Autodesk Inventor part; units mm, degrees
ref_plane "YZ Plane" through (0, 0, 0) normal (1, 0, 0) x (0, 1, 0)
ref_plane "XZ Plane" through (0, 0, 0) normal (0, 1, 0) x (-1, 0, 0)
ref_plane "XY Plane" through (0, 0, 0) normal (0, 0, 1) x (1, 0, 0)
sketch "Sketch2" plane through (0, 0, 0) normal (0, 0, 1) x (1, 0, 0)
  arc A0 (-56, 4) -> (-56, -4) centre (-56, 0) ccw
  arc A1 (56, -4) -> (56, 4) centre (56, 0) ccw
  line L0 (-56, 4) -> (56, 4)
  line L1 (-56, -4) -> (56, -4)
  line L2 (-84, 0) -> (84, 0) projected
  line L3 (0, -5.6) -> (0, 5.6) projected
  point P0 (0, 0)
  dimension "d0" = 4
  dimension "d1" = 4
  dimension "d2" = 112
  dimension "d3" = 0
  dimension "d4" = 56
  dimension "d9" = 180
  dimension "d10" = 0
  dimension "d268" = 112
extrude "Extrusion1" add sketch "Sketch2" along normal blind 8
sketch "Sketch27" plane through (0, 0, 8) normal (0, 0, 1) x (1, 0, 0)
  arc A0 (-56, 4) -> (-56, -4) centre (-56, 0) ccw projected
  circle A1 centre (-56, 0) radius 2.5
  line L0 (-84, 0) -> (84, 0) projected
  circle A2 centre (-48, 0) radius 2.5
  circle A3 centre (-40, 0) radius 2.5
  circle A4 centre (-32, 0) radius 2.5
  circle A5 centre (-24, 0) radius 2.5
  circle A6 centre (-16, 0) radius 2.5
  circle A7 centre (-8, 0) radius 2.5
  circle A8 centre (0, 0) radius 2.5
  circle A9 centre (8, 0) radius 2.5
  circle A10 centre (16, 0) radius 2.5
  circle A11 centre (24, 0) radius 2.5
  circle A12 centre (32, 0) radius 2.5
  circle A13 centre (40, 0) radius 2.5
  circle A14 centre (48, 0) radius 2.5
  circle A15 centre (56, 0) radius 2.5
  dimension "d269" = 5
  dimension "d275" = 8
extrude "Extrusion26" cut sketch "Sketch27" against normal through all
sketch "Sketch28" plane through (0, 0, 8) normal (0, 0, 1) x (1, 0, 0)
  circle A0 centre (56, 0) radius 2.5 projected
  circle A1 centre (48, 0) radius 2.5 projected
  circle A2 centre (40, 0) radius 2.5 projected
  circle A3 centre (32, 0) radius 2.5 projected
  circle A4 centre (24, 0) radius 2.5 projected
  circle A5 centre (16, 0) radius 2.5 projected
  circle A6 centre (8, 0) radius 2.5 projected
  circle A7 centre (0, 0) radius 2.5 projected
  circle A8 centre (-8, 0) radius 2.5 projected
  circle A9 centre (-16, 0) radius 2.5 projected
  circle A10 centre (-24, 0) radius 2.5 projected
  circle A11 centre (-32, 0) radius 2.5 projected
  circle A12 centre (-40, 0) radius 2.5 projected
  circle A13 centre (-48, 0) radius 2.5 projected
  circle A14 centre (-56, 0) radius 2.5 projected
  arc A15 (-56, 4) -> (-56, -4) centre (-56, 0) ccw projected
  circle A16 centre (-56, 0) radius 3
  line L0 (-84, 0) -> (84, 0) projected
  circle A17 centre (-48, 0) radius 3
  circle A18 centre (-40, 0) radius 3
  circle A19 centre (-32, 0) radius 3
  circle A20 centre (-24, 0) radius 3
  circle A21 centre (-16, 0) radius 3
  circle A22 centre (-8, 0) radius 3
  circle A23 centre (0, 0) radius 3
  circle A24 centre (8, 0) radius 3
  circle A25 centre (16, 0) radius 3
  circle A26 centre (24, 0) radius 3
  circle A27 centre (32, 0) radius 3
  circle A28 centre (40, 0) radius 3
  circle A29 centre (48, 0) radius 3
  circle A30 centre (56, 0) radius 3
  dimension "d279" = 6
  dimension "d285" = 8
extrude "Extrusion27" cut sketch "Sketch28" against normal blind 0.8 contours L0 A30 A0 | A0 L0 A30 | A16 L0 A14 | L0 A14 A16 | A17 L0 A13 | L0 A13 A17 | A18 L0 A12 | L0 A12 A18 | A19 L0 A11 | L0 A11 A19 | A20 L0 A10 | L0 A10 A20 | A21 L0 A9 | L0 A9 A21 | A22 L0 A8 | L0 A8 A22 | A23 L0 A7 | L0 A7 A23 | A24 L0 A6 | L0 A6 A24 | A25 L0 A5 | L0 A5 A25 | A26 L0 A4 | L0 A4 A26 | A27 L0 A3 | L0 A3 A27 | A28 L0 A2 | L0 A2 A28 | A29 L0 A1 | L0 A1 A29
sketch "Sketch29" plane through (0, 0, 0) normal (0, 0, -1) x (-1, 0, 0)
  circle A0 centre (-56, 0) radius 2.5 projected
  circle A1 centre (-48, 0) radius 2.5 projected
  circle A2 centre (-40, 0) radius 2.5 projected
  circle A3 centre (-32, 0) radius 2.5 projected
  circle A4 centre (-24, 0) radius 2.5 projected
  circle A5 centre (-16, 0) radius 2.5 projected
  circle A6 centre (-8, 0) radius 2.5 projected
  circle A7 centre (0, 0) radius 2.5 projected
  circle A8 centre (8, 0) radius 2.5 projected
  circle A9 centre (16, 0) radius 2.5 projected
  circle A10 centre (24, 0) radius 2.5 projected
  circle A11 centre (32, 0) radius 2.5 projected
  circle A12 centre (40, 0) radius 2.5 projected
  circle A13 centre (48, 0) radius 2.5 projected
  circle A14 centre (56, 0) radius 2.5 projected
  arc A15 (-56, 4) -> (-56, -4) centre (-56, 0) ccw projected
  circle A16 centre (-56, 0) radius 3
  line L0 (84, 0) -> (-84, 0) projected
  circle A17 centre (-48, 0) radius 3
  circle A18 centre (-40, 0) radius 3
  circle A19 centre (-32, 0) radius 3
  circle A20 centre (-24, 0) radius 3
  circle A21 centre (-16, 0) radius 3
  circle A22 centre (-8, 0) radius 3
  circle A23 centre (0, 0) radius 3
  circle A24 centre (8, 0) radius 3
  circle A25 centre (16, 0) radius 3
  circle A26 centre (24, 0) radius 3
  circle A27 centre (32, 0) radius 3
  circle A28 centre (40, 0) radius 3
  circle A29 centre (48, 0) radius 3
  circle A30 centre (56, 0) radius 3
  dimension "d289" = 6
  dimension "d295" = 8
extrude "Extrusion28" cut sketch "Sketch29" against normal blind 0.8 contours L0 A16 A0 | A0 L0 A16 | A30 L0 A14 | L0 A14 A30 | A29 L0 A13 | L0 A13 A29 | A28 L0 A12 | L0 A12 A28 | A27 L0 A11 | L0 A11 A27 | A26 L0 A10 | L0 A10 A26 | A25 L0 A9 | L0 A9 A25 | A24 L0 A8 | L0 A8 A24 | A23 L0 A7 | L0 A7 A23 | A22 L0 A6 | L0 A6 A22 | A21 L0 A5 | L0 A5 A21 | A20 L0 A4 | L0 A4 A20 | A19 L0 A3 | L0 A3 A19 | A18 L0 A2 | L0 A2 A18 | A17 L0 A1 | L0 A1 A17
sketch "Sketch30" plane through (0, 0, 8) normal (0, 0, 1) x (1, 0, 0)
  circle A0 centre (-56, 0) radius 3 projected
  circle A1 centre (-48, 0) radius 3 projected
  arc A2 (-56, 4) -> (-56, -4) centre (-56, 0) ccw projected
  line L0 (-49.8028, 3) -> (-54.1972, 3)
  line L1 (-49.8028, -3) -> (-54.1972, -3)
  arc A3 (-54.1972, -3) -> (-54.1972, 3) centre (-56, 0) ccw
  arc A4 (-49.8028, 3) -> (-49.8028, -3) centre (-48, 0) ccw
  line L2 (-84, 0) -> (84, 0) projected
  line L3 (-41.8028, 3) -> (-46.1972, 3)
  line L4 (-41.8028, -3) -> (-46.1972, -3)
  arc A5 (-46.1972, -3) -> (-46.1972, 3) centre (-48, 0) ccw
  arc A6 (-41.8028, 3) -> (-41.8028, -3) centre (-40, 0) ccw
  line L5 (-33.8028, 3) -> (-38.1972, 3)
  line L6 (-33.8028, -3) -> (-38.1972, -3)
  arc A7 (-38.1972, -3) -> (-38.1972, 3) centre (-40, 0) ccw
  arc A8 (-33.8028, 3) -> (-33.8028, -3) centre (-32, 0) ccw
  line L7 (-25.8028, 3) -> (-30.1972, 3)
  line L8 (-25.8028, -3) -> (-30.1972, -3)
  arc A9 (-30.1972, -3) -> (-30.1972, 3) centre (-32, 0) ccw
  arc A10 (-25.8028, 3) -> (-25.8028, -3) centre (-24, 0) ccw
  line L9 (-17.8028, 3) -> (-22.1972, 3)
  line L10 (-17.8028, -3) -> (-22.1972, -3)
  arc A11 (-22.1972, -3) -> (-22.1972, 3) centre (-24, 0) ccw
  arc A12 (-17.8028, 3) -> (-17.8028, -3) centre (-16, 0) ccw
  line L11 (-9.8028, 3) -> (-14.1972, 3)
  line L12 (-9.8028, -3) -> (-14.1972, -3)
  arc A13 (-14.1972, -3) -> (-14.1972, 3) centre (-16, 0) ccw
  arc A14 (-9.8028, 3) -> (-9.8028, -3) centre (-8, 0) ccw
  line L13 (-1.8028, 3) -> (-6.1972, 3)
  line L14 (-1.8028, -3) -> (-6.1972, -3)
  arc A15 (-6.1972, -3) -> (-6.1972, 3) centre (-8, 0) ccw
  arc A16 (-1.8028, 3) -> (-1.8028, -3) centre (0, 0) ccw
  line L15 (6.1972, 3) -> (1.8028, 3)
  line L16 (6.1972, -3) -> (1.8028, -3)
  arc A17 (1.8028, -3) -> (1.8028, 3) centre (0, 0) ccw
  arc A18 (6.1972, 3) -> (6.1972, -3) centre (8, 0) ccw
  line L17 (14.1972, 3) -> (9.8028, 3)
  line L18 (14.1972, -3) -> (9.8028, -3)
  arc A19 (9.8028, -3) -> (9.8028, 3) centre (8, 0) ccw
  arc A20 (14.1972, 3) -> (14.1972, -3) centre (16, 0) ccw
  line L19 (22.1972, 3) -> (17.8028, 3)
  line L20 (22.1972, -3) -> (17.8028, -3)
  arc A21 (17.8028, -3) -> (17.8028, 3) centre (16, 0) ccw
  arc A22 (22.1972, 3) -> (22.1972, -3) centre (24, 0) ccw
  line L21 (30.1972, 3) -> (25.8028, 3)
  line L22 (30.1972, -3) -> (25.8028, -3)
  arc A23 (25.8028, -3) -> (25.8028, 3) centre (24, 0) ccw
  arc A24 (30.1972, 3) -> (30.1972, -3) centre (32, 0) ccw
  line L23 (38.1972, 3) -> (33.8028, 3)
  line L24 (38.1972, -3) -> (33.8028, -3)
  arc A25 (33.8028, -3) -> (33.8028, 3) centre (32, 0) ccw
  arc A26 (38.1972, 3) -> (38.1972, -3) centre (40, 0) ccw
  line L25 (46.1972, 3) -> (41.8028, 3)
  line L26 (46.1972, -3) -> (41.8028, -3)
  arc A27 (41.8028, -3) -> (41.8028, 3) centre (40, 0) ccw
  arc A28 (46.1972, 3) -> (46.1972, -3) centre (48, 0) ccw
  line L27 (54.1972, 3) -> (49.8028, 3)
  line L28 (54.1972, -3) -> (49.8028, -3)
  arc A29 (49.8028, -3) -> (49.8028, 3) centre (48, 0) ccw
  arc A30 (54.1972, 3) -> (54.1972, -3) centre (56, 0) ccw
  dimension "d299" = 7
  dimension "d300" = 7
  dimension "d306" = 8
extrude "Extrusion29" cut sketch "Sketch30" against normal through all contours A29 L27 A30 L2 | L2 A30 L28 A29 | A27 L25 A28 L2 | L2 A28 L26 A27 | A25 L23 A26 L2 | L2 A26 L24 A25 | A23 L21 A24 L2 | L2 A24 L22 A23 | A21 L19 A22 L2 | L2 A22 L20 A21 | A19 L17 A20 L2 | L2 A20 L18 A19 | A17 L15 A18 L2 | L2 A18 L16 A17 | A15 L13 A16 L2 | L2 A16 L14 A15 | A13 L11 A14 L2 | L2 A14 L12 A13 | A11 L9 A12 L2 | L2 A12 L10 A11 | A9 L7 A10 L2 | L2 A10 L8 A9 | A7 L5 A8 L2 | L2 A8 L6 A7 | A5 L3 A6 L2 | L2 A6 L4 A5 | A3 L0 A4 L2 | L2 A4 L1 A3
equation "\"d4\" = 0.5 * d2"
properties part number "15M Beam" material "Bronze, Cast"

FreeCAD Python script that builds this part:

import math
import FreeCAD as App
import Part
import Sketcher

V = App.Vector
Q = App.Units.Quantity

doc = App.newDocument("Part")
body = doc.addObject("PartDesign::Body", "Body")

sketch1 = body.newObject("Sketcher::SketchObject", "Sketch")
sketch1.AttachmentSupport = (doc.getObject("XY_Plane"), [""])
sketch1.MapMode = "FlatFace"
sketch1.addGeometry(Part.ArcOfCircle(Part.Circle(V(-56, 0, 0), V(0, 0, 1), 4), math.radians(90), math.radians(270)), False)
sketch1.addGeometry(Part.LineSegment(V(-56, -4, 0), V(56, -4, 0)), False)
sketch1.addGeometry(Part.ArcOfCircle(Part.Circle(V(56, 0, 0), V(0, 0, 1), 4), math.radians(-90), math.radians(90)), False)
sketch1.addGeometry(Part.LineSegment(V(56, 4, 0), V(-56, 4, 0)), False)
sketch1.addConstraint(Sketcher.Constraint("Tangent", 0, 2, 1, 1))
sketch1.addConstraint(Sketcher.Constraint("Tangent", 1, 2, 2, 1))
sketch1.addConstraint(Sketcher.Constraint("Tangent", 2, 2, 3, 1))
sketch1.addConstraint(Sketcher.Constraint("Tangent", 3, 2, 0, 1))
sketch1.addConstraint(Sketcher.Constraint("Horizontal", 1))
sketch1.addConstraint(Sketcher.Constraint("Horizontal", 3))
sketch1.addConstraint(Sketcher.Constraint("Symmetric", 0, 3, 2, 3, -1, 1))
sketch1.addConstraint(Sketcher.Constraint("Radius", 0, Q("4 mm")))
sketch1.addConstraint(Sketcher.Constraint("DistanceX", 1, 1, 1, 2, Q("112 mm")))
pad1 = body.newObject("PartDesign::Pad", "Pad")
pad1.Profile = sketch1
pad1.Length = 8

sketch2 = body.newObject("Sketcher::SketchObject", "Sketch001")
sketch2.AttachmentSupport = (doc.getObject("XY_Plane"), [""])
sketch2.MapMode = "FlatFace"
sketch2.AttachmentOffset = App.Placement(V(0, 0, 8), App.Rotation())
sketch2.addGeometry(Part.Circle(V(-56, 0, 0), V(0, 0, 1), 2.5), False)
sketch2.addGeometry(Part.Circle(V(56, 0, 0), V(0, 0, 1), 2.5), False)
sketch2.addGeometry(Part.Circle(V(48, 0, 0), V(0, 0, 1), 2.5), False)
sketch2.addGeometry(Part.Circle(V(40, 0, 0), V(0, 0, 1), 2.5), False)
sketch2.addGeometry(Part.Circle(V(32, 0, 0), V(0, 0, 1), 2.5), False)
sketch2.addGeometry(Part.Circle(V(24, 0, 0), V(0, 0, 1), 2.5), False)
sketch2.addGeometry(Part.Circle(V(16, 0, 0), V(0, 0, 1), 2.5), False)
sketch2.addGeometry(Part.Circle(V(8, 0, 0), V(0, 0, 1), 2.5), False)
sketch2.addGeometry(Part.Circle(V(0, 0, 0), V(0, 0, 1), 2.5), False)
sketch2.addGeometry(Part.Circle(V(-8, 0, 0), V(0, 0, 1), 2.5), False)
sketch2.addGeometry(Part.Circle(V(-16, 0, 0), V(0, 0, 1), 2.5), False)
sketch2.addGeometry(Part.Circle(V(-24, 0, 0), V(0, 0, 1), 2.5), False)
sketch2.addGeometry(Part.Circle(V(-32, 0, 0), V(0, 0, 1), 2.5), False)
sketch2.addGeometry(Part.Circle(V(-40, 0, 0), V(0, 0, 1), 2.5), False)
sketch2.addGeometry(Part.Circle(V(-48, 0, 0), V(0, 0, 1), 2.5), False)
sketch2.addConstraint(Sketcher.Constraint("Coincident", 8, 3, -1, 1))
sketch2.addConstraint(Sketcher.Constraint("Equal", 0, 1))
sketch2.addConstraint(Sketcher.Constraint("Equal", 1, 2))
sketch2.addConstraint(Sketcher.Constraint("Equal", 2, 3))
sketch2.addConstraint(Sketcher.Constraint("Equal", 3, 4))
sketch2.addConstraint(Sketcher.Constraint("Equal", 4, 5))
sketch2.addConstraint(Sketcher.Constraint("Equal", 5, 6))
sketch2.addConstraint(Sketcher.Constraint("Equal", 6, 7))
sketch2.addConstraint(Sketcher.Constraint("Equal", 7, 8))
sketch2.addConstraint(Sketcher.Constraint("Equal", 8, 9))
sketch2.addConstraint(Sketcher.Constraint("Equal", 9, 10))
sketch2.addConstraint(Sketcher.Constraint("Equal", 10, 11))
sketch2.addConstraint(Sketcher.Constraint("Equal", 11, 12))
sketch2.addConstraint(Sketcher.Constraint("Equal", 12, 13))
sketch2.addConstraint(Sketcher.Constraint("Equal", 13, 14))
sketch2.addConstraint(Sketcher.Constraint("Symmetric", 0, 3, 1, 3, -1, 1))
sketch2.addConstraint(Sketcher.Constraint("Symmetric", 7, 3, 9, 3, -1, 1))
sketch2.addConstraint(Sketcher.Constraint("Symmetric", 6, 3, 10, 3, -1, 1))
sketch2.addConstraint(Sketcher.Constraint("Symmetric", 5, 3, 11, 3, -1, 1))
sketch2.addConstraint(Sketcher.Constraint("Symmetric", 4, 3, 12, 3, -1, 1))
sketch2.addConstraint(Sketcher.Constraint("Symmetric", 3, 3, 13, 3, -1, 1))
sketch2.addConstraint(Sketcher.Constraint("Symmetric", 2, 3, 14, 3, -1, 1))
sketch2.addConstraint(Sketcher.Constraint("PointOnObject", 0, 3, -1))
sketch2.addConstraint(Sketcher.Constraint("PointOnObject", 2, 3, -1))
sketch2.addConstraint(Sketcher.Constraint("PointOnObject", 3, 3, -1))
sketch2.addConstraint(Sketcher.Constraint("PointOnObject", 4, 3, -1))
sketch2.addConstraint(Sketcher.Constraint("PointOnObject", 5, 3, -1))
sketch2.addConstraint(Sketcher.Constraint("PointOnObject", 6, 3, -1))
sketch2.addConstraint(Sketcher.Constraint("PointOnObject", 7, 3, -1))
sketch2.addConstraint(Sketcher.Constraint("Diameter", 0, Q("5 mm")))
sketch2.addConstraint(Sketcher.Constraint("DistanceX", -1, 1, 7, 3, Q("8 mm")))
sketch2.addConstraint(Sketcher.Constraint("DistanceX", 2, 3, 1, 3, Q("8 mm")))
sketch2.addConstraint(Sketcher.Constraint("DistanceX", 3, 3, 2, 3, Q("8 mm")))
sketch2.addConstraint(Sketcher.Constraint("DistanceX", 4, 3, 3, 3, Q("8 mm")))
sketch2.addConstraint(Sketcher.Constraint("DistanceX", 5, 3, 4, 3, Q("8 mm")))
sketch2.addConstraint(Sketcher.Constraint("DistanceX", 6, 3, 5, 3, Q("8 mm")))
sketch2.addConstraint(Sketcher.Constraint("DistanceX", 7, 3, 6, 3, Q("8 mm")))
pocket1 = body.newObject("PartDesign::Pocket", "Pocket")
pocket1.Profile = sketch2
pocket1.Type = "ThroughAll"

sketch3 = body.newObject("Sketcher::SketchObject", "Sketch002")
sketch3.AttachmentSupport = (doc.getObject("XY_Plane"), [""])
sketch3.MapMode = "FlatFace"
sketch3.AttachmentOffset = App.Placement(V(0, 0, 8), App.Rotation())
sketch3.addGeometry(Part.Circle(V(56, 0, 0), V(0, 0, 1), 3), False)
sketch3.addGeometry(Part.Circle(V(56, 0, 0), V(0, 0, 1), 2.5), False)
sketch3.addGeometry(Part.Circle(V(-56, 0, 0), V(0, 0, 1), 3), False)
sketch3.addGeometry(Part.Circle(V(-56, 0, 0), V(0, 0, 1), 2.5), False)
sketch3.addGeometry(Part.Circle(V(-48, 0, 0), V(0, 0, 1), 3), False)
sketch3.addGeometry(Part.Circle(V(-48, 0, 0), V(0, 0, 1), 2.5), False)
sketch3.addGeometry(Part.Circle(V(-40, 0, 0), V(0, 0, 1), 3), False)
sketch3.addGeometry(Part.Circle(V(-40, 0, 0), V(0, 0, 1), 2.5), False)
sketch3.addGeometry(Part.Circle(V(-32, 0, 0), V(0, 0, 1), 3), False)
sketch3.addGeometry(Part.Circle(V(-32, 0, 0), V(0, 0, 1), 2.5), False)
sketch3.addGeometry(Part.Circle(V(-24, 0, 0), V(0, 0, 1), 3), False)
sketch3.addGeometry(Part.Circle(V(-24, 0, 0), V(0, 0, 1), 2.5), False)
sketch3.addGeometry(Part.Circle(V(-16, 0, 0), V(0, 0, 1), 3), False)
sketch3.addGeometry(Part.Circle(V(-16, 0, 0), V(0, 0, 1), 2.5), False)
sketch3.addGeometry(Part.Circle(V(-8, 0, 0), V(0, 0, 1), 3), False)
sketch3.addGeometry(Part.Circle(V(-8, 0, 0), V(0, 0, 1), 2.5), False)
sketch3.addGeometry(Part.Circle(V(0, 0, 0), V(0, 0, 1), 3), False)
sketch3.addGeometry(Part.Circle(V(0, 0, 0), V(0, 0, 1), 2.5), False)
sketch3.addGeometry(Part.Circle(V(8, 0, 0), V(0, 0, 1), 3), False)
sketch3.addGeometry(Part.Circle(V(8, 0, 0), V(0, 0, 1), 2.5), False)
sketch3.addGeometry(Part.Circle(V(16, 0, 0), V(0, 0, 1), 3), False)
sketch3.addGeometry(Part.Circle(V(16, 0, 0), V(0, 0, 1), 2.5), False)
sketch3.addGeometry(Part.Circle(V(24, 0, 0), V(0, 0, 1), 3), False)
sketch3.addGeometry(Part.Circle(V(24, 0, 0), V(0, 0, 1), 2.5), False)
sketch3.addGeometry(Part.Circle(V(32, 0, 0), V(0, 0, 1), 3), False)
sketch3.addGeometry(Part.Circle(V(32, 0, 0), V(0, 0, 1), 2.5), False)
sketch3.addGeometry(Part.Circle(V(40, 0, 0), V(0, 0, 1), 3), False)
sketch3.addGeometry(Part.Circle(V(40, 0, 0), V(0, 0, 1), 2.5), False)
sketch3.addGeometry(Part.Circle(V(48, 0, 0), V(0, 0, 1), 3), False)
sketch3.addGeometry(Part.Circle(V(48, 0, 0), V(0, 0, 1), 2.5), False)
sketch3.addConstraint(Sketcher.Constraint("Coincident", 16, 3, -1, 1))
sketch3.addConstraint(Sketcher.Constraint("Coincident", 17, 3, -1, 1))
sketch3.addConstraint(Sketcher.Constraint("Coincident", 1, 3, 0, 3))
sketch3.addConstraint(Sketcher.Constraint("Coincident", 3, 3, 2, 3))
sketch3.addConstraint(Sketcher.Constraint("Coincident", 5, 3, 4, 3))
sketch3.addConstraint(Sketcher.Constraint("Coincident", 7, 3, 6, 3))
sketch3.addConstraint(Sketcher.Constraint("Coincident", 9, 3, 8, 3))
sketch3.addConstraint(Sketcher.Constraint("Coincident", 11, 3, 10, 3))
sketch3.addConstraint(Sketcher.Constraint("Coincident", 13, 3, 12, 3))
sketch3.addConstraint(Sketcher.Constraint("Coincident", 15, 3, 14, 3))
sketch3.addConstraint(Sketcher.Constraint("Coincident", 19, 3, 18, 3))
sketch3.addConstraint(Sketcher.Constraint("Coincident", 21, 3, 20, 3))
sketch3.addConstraint(Sketcher.Constraint("Coincident", 23, 3, 22, 3))
sketch3.addConstraint(Sketcher.Constraint("Coincident", 25, 3, 24, 3))
sketch3.addConstraint(Sketcher.Constraint("Coincident", 27, 3, 26, 3))
sketch3.addConstraint(Sketcher.Constraint("Coincident", 29, 3, 28, 3))
sketch3.addConstraint(Sketcher.Constraint("Equal", 0, 2))
sketch3.addConstraint(Sketcher.Constraint("Equal", 1, 3))
sketch3.addConstraint(Sketcher.Constraint("Equal", 2, 4))
sketch3.addConstraint(Sketcher.Constraint("Equal", 3, 5))
sketch3.addConstraint(Sketcher.Constraint("Equal", 4, 6))
sketch3.addConstraint(Sketcher.Constraint("Equal", 5, 7))
sketch3.addConstraint(Sketcher.Constraint("Equal", 6, 8))
sketch3.addConstraint(Sketcher.Constraint("Equal", 7, 9))
sketch3.addConstraint(Sketcher.Constraint("Equal", 8, 10))
sketch3.addConstraint(Sketcher.Constraint("Equal", 9, 11))
sketch3.addConstraint(Sketcher.Constraint("Equal", 10, 12))
sketch3.addConstraint(Sketcher.Constraint("Equal", 11, 13))
sketch3.addConstraint(Sketcher.Constraint("Equal", 12, 14))
sketch3.addConstraint(Sketcher.Constraint("Equal", 13, 15))
sketch3.addConstraint(Sketcher.Constraint("Equal", 14, 16))
sketch3.addConstraint(Sketcher.Constraint("Equal", 15, 17))
sketch3.addConstraint(Sketcher.Constraint("Equal", 16, 18))
sketch3.addConstraint(Sketcher.Constraint("Equal", 17, 19))
sketch3.addConstraint(Sketcher.Constraint("Equal", 18, 20))
sketch3.addConstraint(Sketcher.Constraint("Equal", 19, 21))
sketch3.addConstraint(Sketcher.Constraint("Equal", 20, 22))
sketch3.addConstraint(Sketcher.Constraint("Equal", 21, 23))
sketch3.addConstraint(Sketcher.Constraint("Equal", 22, 24))
sketch3.addConstraint(Sketcher.Constraint("Equal", 23, 25))
sketch3.addConstraint(Sketcher.Constraint("Equal", 24, 26))
sketch3.addConstraint(Sketcher.Constraint("Equal", 25, 27))
sketch3.addConstraint(Sketcher.Constraint("Equal", 26, 28))
sketch3.addConstraint(Sketcher.Constraint("Equal", 27, 29))
sketch3.addConstraint(Sketcher.Constraint("Symmetric", 0, 3, 2, 3, -1, 1))
sketch3.addConstraint(Sketcher.Constraint("Symmetric", 14, 3, 18, 3, -1, 1))
sketch3.addConstraint(Sketcher.Constraint("Symmetric", 12, 3, 20, 3, -1, 1))
sketch3.addConstraint(Sketcher.Constraint("Symmetric", 10, 3, 22, 3, -1, 1))
sketch3.addConstraint(Sketcher.Constraint("Symmetric", 8, 3, 24, 3, -1, 1))
sketch3.addConstraint(Sketcher.Constraint("Symmetric", 6, 3, 26, 3, -1, 1))
sketch3.addConstraint(Sketcher.Constraint("Symmetric", 4, 3, 28, 3, -1, 1))
sketch3.addConstraint(Sketcher.Constraint("PointOnObject", 0, 3, -1))
sketch3.addConstraint(Sketcher.Constraint("PointOnObject", 4, 3, -1))
sketch3.addConstraint(Sketcher.Constraint("PointOnObject", 6, 3, -1))
sketch3.addConstraint(Sketcher.Constraint("PointOnObject", 8, 3, -1))
sketch3.addConstraint(Sketcher.Constraint("PointOnObject", 10, 3, -1))
sketch3.addConstraint(Sketcher.Constraint("PointOnObject", 12, 3, -1))
sketch3.addConstraint(Sketcher.Constraint("PointOnObject", 14, 3, -1))
sketch3.addConstraint(Sketcher.Constraint("Diameter", 0, Q("6 mm")))
sketch3.addConstraint(Sketcher.Constraint("Diameter", 1, Q("5 mm")))
sketch3.addConstraint(Sketcher.Constraint("DistanceX", 14, 3, -1, 1, Q("8 mm")))
sketch3.addConstraint(Sketcher.Constraint("DistanceX", 2, 3, 4, 3, Q("8 mm")))
sketch3.addConstraint(Sketcher.Constraint("DistanceX", 4, 3, 6, 3, Q("8 mm")))
sketch3.addConstraint(Sketcher.Constraint("DistanceX", 6, 3, 8, 3, Q("8 mm")))
sketch3.addConstraint(Sketcher.Constraint("DistanceX", 8, 3, 10, 3, Q("8 mm")))
sketch3.addConstraint(Sketcher.Constraint("DistanceX", 10, 3, 12, 3, Q("8 mm")))
sketch3.addConstraint(Sketcher.Constraint("DistanceX", 12, 3, 14, 3, Q("8 mm")))
pocket2 = body.newObject("PartDesign::Pocket", "Pocket001")
pocket2.Profile = sketch3
pocket2.Length = 0.8

sketch4 = body.newObject("Sketcher::SketchObject", "Sketch003")
sketch4.AttachmentSupport = (doc.getObject("XY_Plane"), [""])
sketch4.MapMode = "FlatFace"
sketch4.addGeometry(Part.Circle(V(56, 0, 0), V(0, 0, 1), 3), False)
sketch4.addGeometry(Part.Circle(V(56, 0, 0), V(0, 0, 1), 2.5), False)
sketch4.addGeometry(Part.Circle(V(-56, 0, 0), V(0, 0, 1), 3), False)
sketch4.addGeometry(Part.Circle(V(-56, 0, 0), V(0, 0, 1), 2.5), False)
sketch4.addGeometry(Part.Circle(V(-48, 0, 0), V(0, 0, 1), 3), False)
sketch4.addGeometry(Part.Circle(V(-48, 0, 0), V(0, 0, 1), 2.5), False)
sketch4.addGeometry(Part.Circle(V(-40, 0, 0), V(0, 0, 1), 3), False)
sketch4.addGeometry(Part.Circle(V(-40, 0, 0), V(0, 0, 1), 2.5), False)
sketch4.addGeometry(Part.Circle(V(-32, 0, 0), V(0, 0, 1), 3), False)
sketch4.addGeometry(Part.Circle(V(-32, 0, 0), V(0, 0, 1), 2.5), False)
sketch4.addGeometry(Part.Circle(V(-24, 0, 0), V(0, 0, 1), 3), False)
sketch4.addGeometry(Part.Circle(V(-24, 0, 0), V(0, 0, 1), 2.5), False)
sketch4.addGeometry(Part.Circle(V(-16, 0, 0), V(0, 0, 1), 3), False)
sketch4.addGeometry(Part.Circle(V(-16, 0, 0), V(0, 0, 1), 2.5), False)
sketch4.addGeometry(Part.Circle(V(-8, 0, 0), V(0, 0, 1), 3), False)
sketch4.addGeometry(Part.Circle(V(-8, 0, 0), V(0, 0, 1), 2.5), False)
sketch4.addGeometry(Part.Circle(V(0, 0, 0), V(0, 0, 1), 3), False)
sketch4.addGeometry(Part.Circle(V(0, 0, 0), V(0, 0, 1), 2.5), False)
sketch4.addGeometry(Part.Circle(V(8, 0, 0), V(0, 0, 1), 3), False)
sketch4.addGeometry(Part.Circle(V(8, 0, 0), V(0, 0, 1), 2.5), False)
sketch4.addGeometry(Part.Circle(V(16, 0, 0), V(0, 0, 1), 3), False)
sketch4.addGeometry(Part.Circle(V(16, 0, 0), V(0, 0, 1), 2.5), False)
sketch4.addGeometry(Part.Circle(V(24, 0, 0), V(0, 0, 1), 3), False)
sketch4.addGeometry(Part.Circle(V(24, 0, 0), V(0, 0, 1), 2.5), False)
sketch4.addGeometry(Part.Circle(V(32, 0, 0), V(0, 0, 1), 3), False)
sketch4.addGeometry(Part.Circle(V(32, 0, 0), V(0, 0, 1), 2.5), False)
sketch4.addGeometry(Part.Circle(V(40, 0, 0), V(0, 0, 1), 3), False)
sketch4.addGeometry(Part.Circle(V(40, 0, 0), V(0, 0, 1), 2.5), False)
sketch4.addGeometry(Part.Circle(V(48, 0, 0), V(0, 0, 1), 3), False)
sketch4.addGeometry(Part.Circle(V(48, 0, 0), V(0, 0, 1), 2.5), False)
sketch4.addConstraint(Sketcher.Constraint("Coincident", 16, 3, -1, 1))
sketch4.addConstraint(Sketcher.Constraint("Coincident", 17, 3, -1, 1))
sketch4.addConstraint(Sketcher.Constraint("Coincident", 1, 3, 0, 3))
sketch4.addConstraint(Sketcher.Constraint("Coincident", 3, 3, 2, 3))
sketch4.addConstraint(Sketcher.Constraint("Coincident", 5, 3, 4, 3))
sketch4.addConstraint(Sketcher.Constraint("Coincident", 7, 3, 6, 3))
sketch4.addConstraint(Sketcher.Constraint("Coincident", 9, 3, 8, 3))
sketch4.addConstraint(Sketcher.Constraint("Coincident", 11, 3, 10, 3))
sketch4.addConstraint(Sketcher.Constraint("Coincident", 13, 3, 12, 3))
sketch4.addConstraint(Sketcher.Constraint("Coincident", 15, 3, 14, 3))
sketch4.addConstraint(Sketcher.Constraint("Coincident", 19, 3, 18, 3))
sketch4.addConstraint(Sketcher.Constraint("Coincident", 21, 3, 20, 3))
sketch4.addConstraint(Sketcher.Constraint("Coincident", 23, 3, 22, 3))
sketch4.addConstraint(Sketcher.Constraint("Coincident", 25, 3, 24, 3))
sketch4.addConstraint(Sketcher.Constraint("Coincident", 27, 3, 26, 3))
sketch4.addConstraint(Sketcher.Constraint("Coincident", 29, 3, 28, 3))
sketch4.addConstraint(Sketcher.Constraint("Equal", 0, 2))
sketch4.addConstraint(Sketcher.Constraint("Equal", 1, 3))
sketch4.addConstraint(Sketcher.Constraint("Equal", 2, 4))
sketch4.addConstraint(Sketcher.Constraint("Equal", 3, 5))
sketch4.addConstraint(Sketcher.Constraint("Equal", 4, 6))
sketch4.addConstraint(Sketcher.Constraint("Equal", 5, 7))
sketch4.addConstraint(Sketcher.Constraint("Equal", 6, 8))
sketch4.addConstraint(Sketcher.Constraint("Equal", 7, 9))
sketch4.addConstraint(Sketcher.Constraint("Equal", 8, 10))
sketch4.addConstraint(Sketcher.Constraint("Equal", 9, 11))
sketch4.addConstraint(Sketcher.Constraint("Equal", 10, 12))
sketch4.addConstraint(Sketcher.Constraint("Equal", 11, 13))
sketch4.addConstraint(Sketcher.Constraint("Equal", 12, 14))
sketch4.addConstraint(Sketcher.Constraint("Equal", 13, 15))
sketch4.addConstraint(Sketcher.Constraint("Equal", 14, 16))
sketch4.addConstraint(Sketcher.Constraint("Equal", 15, 17))
sketch4.addConstraint(Sketcher.Constraint("Equal", 16, 18))
sketch4.addConstraint(Sketcher.Constraint("Equal", 17, 19))
sketch4.addConstraint(Sketcher.Constraint("Equal", 18, 20))
sketch4.addConstraint(Sketcher.Constraint("Equal", 19, 21))
sketch4.addConstraint(Sketcher.Constraint("Equal", 20, 22))
sketch4.addConstraint(Sketcher.Constraint("Equal", 21, 23))
sketch4.addConstraint(Sketcher.Constraint("Equal", 22, 24))
sketch4.addConstraint(Sketcher.Constraint("Equal", 23, 25))
sketch4.addConstraint(Sketcher.Constraint("Equal", 24, 26))
sketch4.addConstraint(Sketcher.Constraint("Equal", 25, 27))
sketch4.addConstraint(Sketcher.Constraint("Equal", 26, 28))
sketch4.addConstraint(Sketcher.Constraint("Equal", 27, 29))
sketch4.addConstraint(Sketcher.Constraint("Symmetric", 0, 3, 2, 3, -1, 1))
sketch4.addConstraint(Sketcher.Constraint("Symmetric", 14, 3, 18, 3, -1, 1))
sketch4.addConstraint(Sketcher.Constraint("Symmetric", 12, 3, 20, 3, -1, 1))
sketch4.addConstraint(Sketcher.Constraint("Symmetric", 10, 3, 22, 3, -1, 1))
sketch4.addConstraint(Sketcher.Constraint("Symmetric", 8, 3, 24, 3, -1, 1))
sketch4.addConstraint(Sketcher.Constraint("Symmetric", 6, 3, 26, 3, -1, 1))
sketch4.addConstraint(Sketcher.Constraint("Symmetric", 4, 3, 28, 3, -1, 1))
sketch4.addConstraint(Sketcher.Constraint("PointOnObject", 0, 3, -1))
sketch4.addConstraint(Sketcher.Constraint("PointOnObject", 4, 3, -1))
sketch4.addConstraint(Sketcher.Constraint("PointOnObject", 6, 3, -1))
sketch4.addConstraint(Sketcher.Constraint("PointOnObject", 8, 3, -1))
sketch4.addConstraint(Sketcher.Constraint("PointOnObject", 10, 3, -1))
sketch4.addConstraint(Sketcher.Constraint("PointOnObject", 12, 3, -1))
sketch4.addConstraint(Sketcher.Constraint("PointOnObject", 14, 3, -1))
sketch4.addConstraint(Sketcher.Constraint("Diameter", 0, Q("6 mm")))
sketch4.addConstraint(Sketcher.Constraint("Diameter", 1, Q("5 mm")))
sketch4.addConstraint(Sketcher.Constraint("DistanceX", 14, 3, -1, 1, Q("8 mm")))
sketch4.addConstraint(Sketcher.Constraint("DistanceX", 2, 3, 4, 3, Q("8 mm")))
sketch4.addConstraint(Sketcher.Constraint("DistanceX", 4, 3, 6, 3, Q("8 mm")))
sketch4.addConstraint(Sketcher.Constraint("DistanceX", 6, 3, 8, 3, Q("8 mm")))
sketch4.addConstraint(Sketcher.Constraint("DistanceX", 8, 3, 10, 3, Q("8 mm")))
sketch4.addConstraint(Sketcher.Constraint("DistanceX", 10, 3, 12, 3, Q("8 mm")))
sketch4.addConstraint(Sketcher.Constraint("DistanceX", 12, 3, 14, 3, Q("8 mm")))
pocket3 = body.newObject("PartDesign::Pocket", "Pocket002")
pocket3.Profile = sketch4
pocket3.Length = 0.8
pocket3.Reversed = True

sketch5 = body.newObject("Sketcher::SketchObject", "Sketch004")
sketch5.AttachmentSupport = (doc.getObject("XY_Plane"), [""])
sketch5.MapMode = "FlatFace"
sketch5.AttachmentOffset = App.Placement(V(0, 0, 8), App.Rotation())
sketch5.addGeometry(Part.ArcOfCircle(Part.Circle(V(48, 0, 0), V(0, 0, 1), 3.5), math.radians(-59), math.radians(59)), False)
sketch5.addGeometry(Part.LineSegment(V(49.8, -3, 0), V(54.2, -3, 0)), False)
sketch5.addGeometry(Part.ArcOfCircle(Part.Circle(V(56, 0, 0), V(0, 0, 1), 3.5), math.radians(121), math.radians(239)), False)
sketch5.addGeometry(Part.LineSegment(V(54.2, 3, 0), V(49.8, 3, 0)), False)
sketch5.addGeometry(Part.ArcOfCircle(Part.Circle(V(40, 0, 0), V(0, 0, 1), 3.5), math.radians(-59), math.radians(59)), False)
sketch5.addGeometry(Part.LineSegment(V(41.8, -3, 0), V(46.2, -3, 0)), False)
sketch5.addGeometry(Part.ArcOfCircle(Part.Circle(V(48, 0, 0), V(0, 0, 1), 3.5), math.radians(121), math.radians(239)), False)
sketch5.addGeometry(Part.LineSegment(V(46.2, 3, 0), V(41.8, 3, 0)), False)
sketch5.addGeometry(Part.ArcOfCircle(Part.Circle(V(32, 0, 0), V(0, 0, 1), 3.5), math.radians(-59), math.radians(59)), False)
sketch5.addGeometry(Part.LineSegment(V(33.8, -3, 0), V(38.2, -3, 0)), False)
sketch5.addGeometry(Part.ArcOfCircle(Part.Circle(V(40, 0, 0), V(0, 0, 1), 3.5), math.radians(121), math.radians(239)), False)
sketch5.addGeometry(Part.LineSegment(V(38.2, 3, 0), V(33.8, 3, 0)), False)
sketch5.addGeometry(Part.ArcOfCircle(Part.Circle(V(24, 0, 0), V(0, 0, 1), 3.5), math.radians(-59), math.radians(59)), False)
sketch5.addGeometry(Part.LineSegment(V(25.8, -3, 0), V(30.2, -3, 0)), False)
sketch5.addGeometry(Part.ArcOfCircle(Part.Circle(V(32, 0, 0), V(0, 0, 1), 3.5), math.radians(121), math.radians(239)), False)
sketch5.addGeometry(Part.LineSegment(V(30.2, 3, 0), V(25.8, 3, 0)), False)
sketch5.addGeometry(Part.ArcOfCircle(Part.Circle(V(16, 0, 0), V(0, 0, 1), 3.5), math.radians(-59), math.radians(59)), False)
sketch5.addGeometry(Part.LineSegment(V(17.8, -3, 0), V(22.2, -3, 0)), False)
sketch5.addGeometry(Part.ArcOfCircle(Part.Circle(V(24, 0, 0), V(0, 0, 1), 3.5), math.radians(121), math.radians(239)), False)
sketch5.addGeometry(Part.LineSegment(V(22.2, 3, 0), V(17.8, 3, 0)), False)
sketch5.addGeometry(Part.ArcOfCircle(Part.Circle(V(8, 0, 0), V(0, 0, 1), 3.5), math.radians(-59), math.radians(59)), False)
sketch5.addGeometry(Part.LineSegment(V(9.8, -3, 0), V(14.2, -3, 0)), False)
sketch5.addGeometry(Part.ArcOfCircle(Part.Circle(V(16, 0, 0), V(0, 0, 1), 3.5), math.radians(121), math.radians(239)), False)
sketch5.addGeometry(Part.LineSegment(V(14.2, 3, 0), V(9.8, 3, 0)), False)
sketch5.addGeometry(Part.ArcOfCircle(Part.Circle(V(0, 0, 0), V(0, 0, 1), 3.5), math.radians(-59), math.radians(59)), False)
sketch5.addGeometry(Part.LineSegment(V(1.8, -3, 0), V(6.2, -3, 0)), False)
sketch5.addGeometry(Part.ArcOfCircle(Part.Circle(V(8, 0, 0), V(0, 0, 1), 3.5), math.radians(121), math.radians(239)), False)
sketch5.addGeometry(Part.LineSegment(V(6.2, 3, 0), V(1.8, 3, 0)), False)
sketch5.addGeometry(Part.ArcOfCircle(Part.Circle(V(-8, 0, 0), V(0, 0, 1), 3.5), math.radians(-59), math.radians(59)), False)
sketch5.addGeometry(Part.LineSegment(V(-6.2, -3, 0), V(-1.8, -3, 0)), False)
sketch5.addGeometry(Part.ArcOfCircle(Part.Circle(V(0, 0, 0), V(0, 0, 1), 3.5), math.radians(121), math.radians(239)), False)
sketch5.addGeometry(Part.LineSegment(V(-1.8, 3, 0), V(-6.2, 3, 0)), False)
sketch5.addGeometry(Part.ArcOfCircle(Part.Circle(V(-16, 0, 0), V(0, 0, 1), 3.5), math.radians(-59), math.radians(59)), False)
sketch5.addGeometry(Part.LineSegment(V(-14.2, -3, 0), V(-9.8, -3, 0)), False)
sketch5.addGeometry(Part.ArcOfCircle(Part.Circle(V(-8, 0, 0), V(0, 0, 1), 3.5), math.radians(121), math.radians(239)), False)
sketch5.addGeometry(Part.LineSegment(V(-9.8, 3, 0), V(-14.2, 3, 0)), False)
sketch5.addGeometry(Part.ArcOfCircle(Part.Circle(V(-24, 0, 0), V(0, 0, 1), 3.5), math.radians(-59), math.radians(59)), False)
sketch5.addGeometry(Part.LineSegment(V(-22.2, -3, 0), V(-17.8, -3, 0)), False)
sketch5.addGeometry(Part.ArcOfCircle(Part.Circle(V(-16, 0, 0), V(0, 0, 1), 3.5), math.radians(121), math.radians(239)), False)
sketch5.addGeometry(Part.LineSegment(V(-17.8, 3, 0), V(-22.2, 3, 0)), False)
sketch5.addGeometry(Part.ArcOfCircle(Part.Circle(V(-32, 0, 0), V(0, 0, 1), 3.5), math.radians(-59), math.radians(59)), False)
sketch5.addGeometry(Part.LineSegment(V(-30.2, -3, 0), V(-25.8, -3, 0)), False)
sketch5.addGeometry(Part.ArcOfCircle(Part.Circle(V(-24, 0, 0), V(0, 0, 1), 3.5), math.radians(121), math.radians(239)), False)
sketch5.addGeometry(Part.LineSegment(V(-25.8, 3, 0), V(-30.2, 3, 0)), False)
sketch5.addGeometry(Part.ArcOfCircle(Part.Circle(V(-40, 0, 0), V(0, 0, 1), 3.5), math.radians(-59), math.radians(59)), False)
sketch5.addGeometry(Part.LineSegment(V(-38.2, -3, 0), V(-33.8, -3, 0)), False)
sketch5.addGeometry(Part.ArcOfCircle(Part.Circle(V(-32, 0, 0), V(0, 0, 1), 3.5), math.radians(121), math.radians(239)), False)
sketch5.addGeometry(Part.LineSegment(V(-33.8, 3, 0), V(-38.2, 3, 0)), False)
sketch5.addGeometry(Part.ArcOfCircle(Part.Circle(V(-48, 0, 0), V(0, 0, 1), 3.5), math.radians(-59), math.radians(59)), False)
sketch5.addGeometry(Part.LineSegment(V(-46.2, -3, 0), V(-41.8, -3, 0)), False)
sketch5.addGeometry(Part.ArcOfCircle(Part.Circle(V(-40, 0, 0), V(0, 0, 1), 3.5), math.radians(121), math.radians(239)), False)
sketch5.addGeometry(Part.LineSegment(V(-41.8, 3, 0), V(-46.2, 3, 0)), False)
sketch5.addGeometry(Part.ArcOfCircle(Part.Circle(V(-56, 0, 0), V(0, 0, 1), 3.5), math.radians(-59), math.radians(59)), False)
sketch5.addGeometry(Part.LineSegment(V(-54.2, -3, 0), V(-49.8, -3, 0)), False)
sketch5.addGeometry(Part.ArcOfCircle(Part.Circle(V(-48, 0, 0), V(0, 0, 1), 3.5), math.radians(121), math.radians(239)), False)
sketch5.addGeometry(Part.LineSegment(V(-49.8, 3, 0), V(-54.2, 3, 0)), False)
sketch5.addConstraint(Sketcher.Constraint("Coincident", 0, 1, 1, 1))
sketch5.addConstraint(Sketcher.Constraint("Coincident", 1, 2, 2, 2))
sketch5.addConstraint(Sketcher.Constraint("Coincident", 2, 1, 3, 1))
sketch5.addConstraint(Sketcher.Constraint("Coincident", 3, 2, 0, 2))
sketch5.addConstraint(Sketcher.Constraint("Coincident", 4, 1, 5, 1))
sketch5.addConstraint(Sketcher.Constraint("Coincident", 5, 2, 6, 2))
sketch5.addConstraint(Sketcher.Constraint("Coincident", 6, 1, 7, 1))
sketch5.addConstraint(Sketcher.Constraint("Coincident", 7, 2, 4, 2))
sketch5.addConstraint(Sketcher.Constraint("Coincident", 8, 1, 9, 1))
sketch5.addConstraint(Sketcher.Constraint("Coincident", 9, 2, 10, 2))
sketch5.addConstraint(Sketcher.Constraint("Coincident", 10, 1, 11, 1))
sketch5.addConstraint(Sketcher.Constraint("Coincident", 11, 2, 8, 2))
sketch5.addConstraint(Sketcher.Constraint("Coincident", 12, 1, 13, 1))
sketch5.addConstraint(Sketcher.Constraint("Coincident", 13, 2, 14, 2))
sketch5.addConstraint(Sketcher.Constraint("Coincident", 14, 1, 15, 1))
sketch5.addConstraint(Sketcher.Constraint("Coincident", 15, 2, 12, 2))
sketch5.addConstraint(Sketcher.Constraint("Coincident", 16, 1, 17, 1))
sketch5.addConstraint(Sketcher.Constraint("Coincident", 17, 2, 18, 2))
sketch5.addConstraint(Sketcher.Constraint("Coincident", 18, 1, 19, 1))
sketch5.addConstraint(Sketcher.Constraint("Coincident", 19, 2, 16, 2))
sketch5.addConstraint(Sketcher.Constraint("Coincident", 20, 1, 21, 1))
sketch5.addConstraint(Sketcher.Constraint("Coincident", 21, 2, 22, 2))
sketch5.addConstraint(Sketcher.Constraint("Coincident", 22, 1, 23, 1))
sketch5.addConstraint(Sketcher.Constraint("Coincident", 23, 2, 20, 2))
sketch5.addConstraint(Sketcher.Constraint("Coincident", 24, 1, 25, 1))
sketch5.addConstraint(Sketcher.Constraint("Coincident", 25, 2, 26, 2))
sketch5.addConstraint(Sketcher.Constraint("Coincident", 26, 1, 27, 1))
sketch5.addConstraint(Sketcher.Constraint("Coincident", 27, 2, 24, 2))
sketch5.addConstraint(Sketcher.Constraint("Coincident", 28, 1, 29, 1))
sketch5.addConstraint(Sketcher.Constraint("Coincident", 29, 2, 30, 2))
sketch5.addConstraint(Sketcher.Constraint("Coincident", 30, 1, 31, 1))
sketch5.addConstraint(Sketcher.Constraint("Coincident", 31, 2, 28, 2))
sketch5.addConstraint(Sketcher.Constraint("Coincident", 32, 1, 33, 1))
sketch5.addConstraint(Sketcher.Constraint("Coincident", 33, 2, 34, 2))
sketch5.addConstraint(Sketcher.Constraint("Coincident", 34, 1, 35, 1))
sketch5.addConstraint(Sketcher.Constraint("Coincident", 35, 2, 32, 2))
sketch5.addConstraint(Sketcher.Constraint("Coincident", 36, 1, 37, 1))
sketch5.addConstraint(Sketcher.Constraint("Coincident", 37, 2, 38, 2))
sketch5.addConstraint(Sketcher.Constraint("Coincident", 38, 1, 39, 1))
sketch5.addConstraint(Sketcher.Constraint("Coincident", 39, 2, 36, 2))
sketch5.addConstraint(Sketcher.Constraint("Coincident", 40, 1, 41, 1))
sketch5.addConstraint(Sketcher.Constraint("Coincident", 41, 2, 42, 2))
sketch5.addConstraint(Sketcher.Constraint("Coincident", 42, 1, 43, 1))
sketch5.addConstraint(Sketcher.Constraint("Coincident", 43, 2, 40, 2))
sketch5.addConstraint(Sketcher.Constraint("Coincident", 44, 1, 45, 1))
sketch5.addConstraint(Sketcher.Constraint("Coincident", 45, 2, 46, 2))
sketch5.addConstraint(Sketcher.Constraint("Coincident", 46, 1, 47, 1))
sketch5.addConstraint(Sketcher.Constraint("Coincident", 47, 2, 44, 2))
sketch5.addConstraint(Sketcher.Constraint("Coincident", 48, 1, 49, 1))
sketch5.addConstraint(Sketcher.Constraint("Coincident", 49, 2, 50, 2))
sketch5.addConstraint(Sketcher.Constraint("Coincident", 50, 1, 51, 1))
sketch5.addConstraint(Sketcher.Constraint("Coincident", 51, 2, 48, 2))
sketch5.addConstraint(Sketcher.Constraint("Coincident", 52, 1, 53, 1))
sketch5.addConstraint(Sketcher.Constraint("Coincident", 53, 2, 54, 2))
sketch5.addConstraint(Sketcher.Constraint("Coincident", 54, 1, 55, 1))
sketch5.addConstraint(Sketcher.Constraint("Coincident", 55, 2, 52, 2))
sketch5.addConstraint(Sketcher.Constraint("Horizontal", 1))
sketch5.addConstraint(Sketcher.Constraint("Horizontal", 3))
sketch5.addConstraint(Sketcher.Constraint("Horizontal", 5))
sketch5.addConstraint(Sketcher.Constraint("Horizontal", 7))
sketch5.addConstraint(Sketcher.Constraint("Horizontal", 9))
sketch5.addConstraint(Sketcher.Constraint("Horizontal", 11))
sketch5.addConstraint(Sketcher.Constraint("Horizontal", 13))
sketch5.addConstraint(Sketcher.Constraint("Horizontal", 15))
sketch5.addConstraint(Sketcher.Constraint("Horizontal", 17))
sketch5.addConstraint(Sketcher.Constraint("Horizontal", 19))
sketch5.addConstraint(Sketcher.Constraint("Horizontal", 21))
sketch5.addConstraint(Sketcher.Constraint("Horizontal", 23))
sketch5.addConstraint(Sketcher.Constraint("Horizontal", 25))
sketch5.addConstraint(Sketcher.Constraint("Horizontal", 27))
sketch5.addConstraint(Sketcher.Constraint("Horizontal", 29))
sketch5.addConstraint(Sketcher.Constraint("Horizontal", 31))
sketch5.addConstraint(Sketcher.Constraint("Horizontal", 33))
sketch5.addConstraint(Sketcher.Constraint("Horizontal", 35))
sketch5.addConstraint(Sketcher.Constraint("Horizontal", 37))
sketch5.addConstraint(Sketcher.Constraint("Horizontal", 39))
sketch5.addConstraint(Sketcher.Constraint("Horizontal", 41))
sketch5.addConstraint(Sketcher.Constraint("Horizontal", 43))
sketch5.addConstraint(Sketcher.Constraint("Horizontal", 45))
sketch5.addConstraint(Sketcher.Constraint("Horizontal", 47))
sketch5.addConstraint(Sketcher.Constraint("Horizontal", 49))
sketch5.addConstraint(Sketcher.Constraint("Horizontal", 51))
sketch5.addConstraint(Sketcher.Constraint("Horizontal", 53))
sketch5.addConstraint(Sketcher.Constraint("Horizontal", 55))
sketch5.addConstraint(Sketcher.Constraint("Coincident", 24, 3, -1, 1))
sketch5.addConstraint(Sketcher.Constraint("Coincident", 30, 3, -1, 1))
sketch5.addConstraint(Sketcher.Constraint("Coincident", 6, 3, 0, 3))
sketch5.addConstraint(Sketcher.Constraint("Coincident", 10, 3, 4, 3))
sketch5.addConstraint(Sketcher.Constraint("Coincident", 14, 3, 8, 3))
sketch5.addConstraint(Sketcher.Constraint("Coincident", 18, 3, 12, 3))
sketch5.addConstraint(Sketcher.Constraint("Coincident", 22, 3, 16, 3))
sketch5.addConstraint(Sketcher.Constraint("Coincident", 26, 3, 20, 3))
sketch5.addConstraint(Sketcher.Constraint("Coincident", 34, 3, 28, 3))
sketch5.addConstraint(Sketcher.Constraint("Coincident", 38, 3, 32, 3))
sketch5.addConstraint(Sketcher.Constraint("Coincident", 42, 3, 36, 3))
sketch5.addConstraint(Sketcher.Constraint("Coincident", 46, 3, 40, 3))
sketch5.addConstraint(Sketcher.Constraint("Coincident", 50, 3, 44, 3))
sketch5.addConstraint(Sketcher.Constraint("Coincident", 54, 3, 48, 3))
sketch5.addConstraint(Sketcher.Constraint("Equal", 0, 2))
sketch5.addConstraint(Sketcher.Constraint("Equal", 2, 4))
sketch5.addConstraint(Sketcher.Constraint("Equal", 4, 6))
sketch5.addConstraint(Sketcher.Constraint("Equal", 6, 8))
sketch5.addConstraint(Sketcher.Constraint("Equal", 8, 10))
sketch5.addConstraint(Sketcher.Constraint("Equal", 10, 12))
sketch5.addConstraint(Sketcher.Constraint("Equal", 12, 14))
sketch5.addConstraint(Sketcher.Constraint("Equal", 14, 16))
sketch5.addConstraint(Sketcher.Constraint("Equal", 16, 18))
sketch5.addConstraint(Sketcher.Constraint("Equal", 18, 20))
sketch5.addConstraint(Sketcher.Constraint("Equal", 20, 22))
sketch5.addConstraint(Sketcher.Constraint("Equal", 22, 24))
sketch5.addConstraint(Sketcher.Constraint("Equal", 24, 26))
sketch5.addConstraint(Sketcher.Constraint("Equal", 26, 28))
sketch5.addConstraint(Sketcher.Constraint("Equal", 28, 30))
sketch5.addConstraint(Sketcher.Constraint("Equal", 30, 32))
sketch5.addConstraint(Sketcher.Constraint("Equal", 32, 34))
sketch5.addConstraint(Sketcher.Constraint("Equal", 34, 36))
sketch5.addConstraint(Sketcher.Constraint("Equal", 36, 38))
sketch5.addConstraint(Sketcher.Constraint("Equal", 38, 40))
sketch5.addConstraint(Sketcher.Constraint("Equal", 40, 42))
sketch5.addConstraint(Sketcher.Constraint("Equal", 42, 44))
sketch5.addConstraint(Sketcher.Constraint("Equal", 44, 46))
sketch5.addConstraint(Sketcher.Constraint("Equal", 46, 48))
sketch5.addConstraint(Sketcher.Constraint("Equal", 48, 50))
sketch5.addConstraint(Sketcher.Constraint("Equal", 50, 52))
sketch5.addConstraint(Sketcher.Constraint("Equal", 52, 54))
sketch5.addConstraint(Sketcher.Constraint("Symmetric", 20, 3, 28, 3, -1, 1))
sketch5.addConstraint(Sketcher.Constraint("Symmetric", 16, 3, 32, 3, -1, 1))
sketch5.addConstraint(Sketcher.Constraint("Symmetric", 12, 3, 36, 3, -1, 1))
sketch5.addConstraint(Sketcher.Constraint("Symmetric", 8, 3, 40, 3, -1, 1))
sketch5.addConstraint(Sketcher.Constraint("Symmetric", 4, 3, 44, 3, -1, 1))
sketch5.addConstraint(Sketcher.Constraint("Symmetric", 0, 3, 48, 3, -1, 1))
sketch5.addConstraint(Sketcher.Constraint("Symmetric", 2, 3, 52, 3, -1, 1))
sketch5.addConstraint(Sketcher.Constraint("Symmetric", 25, 2, 28, 1, -2))
sketch5.addConstraint(Sketcher.Constraint("Symmetric", 21, 2, 32, 1, -2))
sketch5.addConstraint(Sketcher.Constraint("Symmetric", 17, 2, 36, 1, -2))
sketch5.addConstraint(Sketcher.Constraint("Symmetric", 13, 2, 40, 1, -2))
sketch5.addConstraint(Sketcher.Constraint("Symmetric", 9, 2, 44, 1, -2))
sketch5.addConstraint(Sketcher.Constraint("Symmetric", 5, 2, 48, 1, -2))
sketch5.addConstraint(Sketcher.Constraint("Symmetric", 1, 2, 52, 1, -2))
sketch5.addConstraint(Sketcher.Constraint("Horizontal", 1, 2, 4, 1))
sketch5.addConstraint(Sketcher.Constraint("Horizontal", 3, 2, 6, 1))
sketch5.addConstraint(Sketcher.Constraint("Horizontal", 5, 2, 8, 1))
sketch5.addConstraint(Sketcher.Constraint("Horizontal", 7, 2, 10, 1))
sketch5.addConstraint(Sketcher.Constraint("Horizontal", 9, 2, 12, 1))
sketch5.addConstraint(Sketcher.Constraint("Horizontal", 11, 2, 14, 1))
sketch5.addConstraint(Sketcher.Constraint("Horizontal", 13, 2, 16, 1))
sketch5.addConstraint(Sketcher.Constraint("Horizontal", 15, 2, 18, 1))
sketch5.addConstraint(Sketcher.Constraint("Horizontal", 17, 2, 20, 1))
sketch5.addConstraint(Sketcher.Constraint("Horizontal", 19, 2, 22, 1))
sketch5.addConstraint(Sketcher.Constraint("Horizontal", 21, 2, 24, 1))
sketch5.addConstraint(Sketcher.Constraint("Horizontal", 23, 2, 26, 1))
sketch5.addConstraint(Sketcher.Constraint("Horizontal", 27, 2, 30, 1))
sketch5.addConstraint(Sketcher.Constraint("Horizontal", 31, 2, 34, 1))
sketch5.addConstraint(Sketcher.Constraint("Horizontal", 35, 2, 38, 1))
sketch5.addConstraint(Sketcher.Constraint("Horizontal", 39, 2, 42, 1))
sketch5.addConstraint(Sketcher.Constraint("Horizontal", 43, 2, 46, 1))
sketch5.addConstraint(Sketcher.Constraint("Horizontal", 47, 2, 50, 1))
sketch5.addConstraint(Sketcher.Constraint("Horizontal", 51, 2, 54, 1))
sketch5.addConstraint(Sketcher.Constraint("Vertical", 1, 2, 2, 1))
sketch5.addConstraint(Sketcher.Constraint("Equal", 3, 5))
sketch5.addConstraint(Sketcher.Constraint("Equal", 7, 9))
sketch5.addConstraint(Sketcher.Constraint("Equal", 11, 13))
sketch5.addConstraint(Sketcher.Constraint("Equal", 15, 17))
sketch5.addConstraint(Sketcher.Constraint("Equal", 19, 21))
sketch5.addConstraint(Sketcher.Constraint("Equal", 23, 25))
sketch5.addConstraint(Sketcher.Constraint("Radius", 0, Q("3.5 mm")))
sketch5.addConstraint(Sketcher.Constraint("DistanceX", -1, 1, 20, 3, Q("8 mm")))
sketch5.addConstraint(Sketcher.Constraint("DistanceY", 0, 1, -1, 1, Q("3 mm")))
pocket4 = body.newObject("PartDesign::Pocket", "Pocket003")
pocket4.Profile = sketch5
pocket4.Type = "ThroughAll"

doc.recompute()
